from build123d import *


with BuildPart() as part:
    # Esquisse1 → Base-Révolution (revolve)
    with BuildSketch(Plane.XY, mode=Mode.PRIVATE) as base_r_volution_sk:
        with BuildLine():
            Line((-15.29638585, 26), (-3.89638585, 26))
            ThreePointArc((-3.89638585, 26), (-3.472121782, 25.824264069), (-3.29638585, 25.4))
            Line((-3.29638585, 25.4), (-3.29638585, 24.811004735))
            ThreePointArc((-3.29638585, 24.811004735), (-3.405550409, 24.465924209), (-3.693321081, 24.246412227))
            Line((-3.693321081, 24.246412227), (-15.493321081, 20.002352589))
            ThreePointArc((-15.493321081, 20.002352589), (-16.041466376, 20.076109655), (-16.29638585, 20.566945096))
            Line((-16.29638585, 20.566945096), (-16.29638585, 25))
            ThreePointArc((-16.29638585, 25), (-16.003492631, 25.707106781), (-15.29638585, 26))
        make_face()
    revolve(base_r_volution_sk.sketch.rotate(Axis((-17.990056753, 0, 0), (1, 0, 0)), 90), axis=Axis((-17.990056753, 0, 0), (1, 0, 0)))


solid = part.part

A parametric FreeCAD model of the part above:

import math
import FreeCAD as App
import Part
import Sketcher

doc = App.newDocument("Part")
body = doc.addObject("PartDesign::Body", "Body")

# Sketch on XY plane
sketch1 = doc.addObject("Sketcher::SketchObject", "Sketch")
body.addObject(sketch1)
sketch1.AttachmentSupport = (doc.XY_Plane, [""])
sketch1.MapMode = "FlatFace"
sketch1.addGeometry([
    Part.LineSegment(App.Vector(-3.896386, 26, 0), App.Vector(-15.296386, 26, 0)),  # 0
    Part.ArcOfCircle(Part.Circle(App.Vector(-15.296386, 25, 0), App.Vector(0, 0, 1), 1), math.radians(90), math.radians(180)),  # 1
    Part.LineSegment(App.Vector(-16.296386, 25, 0), App.Vector(-16.296386, 20.566945, 0)),  # 2
    Part.ArcOfCircle(Part.Circle(App.Vector(-15.696386, 20.566945, 0), App.Vector(0, 0, 1), 0.6), math.radians(180), math.radians(289.781937)),  # 3
    Part.LineSegment(App.Vector(-15.493321, 20.002353, 0), App.Vector(-3.693321, 24.246412, 0)),  # 4
    Part.ArcOfCircle(Part.Circle(App.Vector(-3.896386, 24.811005, 0), App.Vector(0, 0, 1), 0.6), math.radians(-70.218063), math.radians(0)),  # 5
    Part.LineSegment(App.Vector(-3.296386, 24.811005, 0), App.Vector(-3.296386, 25.4, 0)),  # 6
    Part.ArcOfCircle(Part.Circle(App.Vector(-3.896386, 25.4, 0), App.Vector(0, 0, 1), 0.6), math.radians(0), math.radians(90)),  # 7
], False)
sketch1.addConstraint([
    Sketcher.Constraint("Tangent", 0, 2, 1, 1),
    Sketcher.Constraint("Tangent", 1, 2, 2, 1),
    Sketcher.Constraint("Tangent", 2, 2, 3, 1),
    Sketcher.Constraint("Tangent", 3, 2, 4, 1),
    Sketcher.Constraint("Tangent", 4, 2, 5, 1),
    Sketcher.Constraint("Tangent", 5, 2, 6, 1),
    Sketcher.Constraint("Tangent", 6, 2, 7, 1),
    Sketcher.Constraint("Tangent", 7, 2, 0, 1),
    Sketcher.Constraint("Horizontal", 0),
    Sketcher.Constraint("Vertical", 2),
    Sketcher.Constraint("Vertical", 6),
    Sketcher.Constraint("Equal", 3, 5),
    Sketcher.Constraint("Equal", 5, 7),
    Sketcher.Constraint("Radius", 1, 1.0),
    Sketcher.Constraint("Radius", 3, 0.6),
    Sketcher.Constraint("DistanceX", 0, 2, 0, 1, 11.4),
    Sketcher.Constraint("DistanceY", -1, 1, 1, 3, 25.0),
    Sketcher.Constraint("DistanceY", 2, 2, 2, 1, 4.433055),
    Sketcher.Constraint("DistanceY", 6, 1, 6, 2, 0.588995),
    Sketcher.Constraint("DistanceX", 3, 2, -1, 1, 15.493321),
])
revolution = doc.addObject("PartDesign::Revolution", "Revolution")
body.addObject(revolution)
revolution.Profile = sketch1
revolution.ReferenceAxis = (sketch1, ["H_Axis"])
revolution.Angle = 360

doc.recompute()
